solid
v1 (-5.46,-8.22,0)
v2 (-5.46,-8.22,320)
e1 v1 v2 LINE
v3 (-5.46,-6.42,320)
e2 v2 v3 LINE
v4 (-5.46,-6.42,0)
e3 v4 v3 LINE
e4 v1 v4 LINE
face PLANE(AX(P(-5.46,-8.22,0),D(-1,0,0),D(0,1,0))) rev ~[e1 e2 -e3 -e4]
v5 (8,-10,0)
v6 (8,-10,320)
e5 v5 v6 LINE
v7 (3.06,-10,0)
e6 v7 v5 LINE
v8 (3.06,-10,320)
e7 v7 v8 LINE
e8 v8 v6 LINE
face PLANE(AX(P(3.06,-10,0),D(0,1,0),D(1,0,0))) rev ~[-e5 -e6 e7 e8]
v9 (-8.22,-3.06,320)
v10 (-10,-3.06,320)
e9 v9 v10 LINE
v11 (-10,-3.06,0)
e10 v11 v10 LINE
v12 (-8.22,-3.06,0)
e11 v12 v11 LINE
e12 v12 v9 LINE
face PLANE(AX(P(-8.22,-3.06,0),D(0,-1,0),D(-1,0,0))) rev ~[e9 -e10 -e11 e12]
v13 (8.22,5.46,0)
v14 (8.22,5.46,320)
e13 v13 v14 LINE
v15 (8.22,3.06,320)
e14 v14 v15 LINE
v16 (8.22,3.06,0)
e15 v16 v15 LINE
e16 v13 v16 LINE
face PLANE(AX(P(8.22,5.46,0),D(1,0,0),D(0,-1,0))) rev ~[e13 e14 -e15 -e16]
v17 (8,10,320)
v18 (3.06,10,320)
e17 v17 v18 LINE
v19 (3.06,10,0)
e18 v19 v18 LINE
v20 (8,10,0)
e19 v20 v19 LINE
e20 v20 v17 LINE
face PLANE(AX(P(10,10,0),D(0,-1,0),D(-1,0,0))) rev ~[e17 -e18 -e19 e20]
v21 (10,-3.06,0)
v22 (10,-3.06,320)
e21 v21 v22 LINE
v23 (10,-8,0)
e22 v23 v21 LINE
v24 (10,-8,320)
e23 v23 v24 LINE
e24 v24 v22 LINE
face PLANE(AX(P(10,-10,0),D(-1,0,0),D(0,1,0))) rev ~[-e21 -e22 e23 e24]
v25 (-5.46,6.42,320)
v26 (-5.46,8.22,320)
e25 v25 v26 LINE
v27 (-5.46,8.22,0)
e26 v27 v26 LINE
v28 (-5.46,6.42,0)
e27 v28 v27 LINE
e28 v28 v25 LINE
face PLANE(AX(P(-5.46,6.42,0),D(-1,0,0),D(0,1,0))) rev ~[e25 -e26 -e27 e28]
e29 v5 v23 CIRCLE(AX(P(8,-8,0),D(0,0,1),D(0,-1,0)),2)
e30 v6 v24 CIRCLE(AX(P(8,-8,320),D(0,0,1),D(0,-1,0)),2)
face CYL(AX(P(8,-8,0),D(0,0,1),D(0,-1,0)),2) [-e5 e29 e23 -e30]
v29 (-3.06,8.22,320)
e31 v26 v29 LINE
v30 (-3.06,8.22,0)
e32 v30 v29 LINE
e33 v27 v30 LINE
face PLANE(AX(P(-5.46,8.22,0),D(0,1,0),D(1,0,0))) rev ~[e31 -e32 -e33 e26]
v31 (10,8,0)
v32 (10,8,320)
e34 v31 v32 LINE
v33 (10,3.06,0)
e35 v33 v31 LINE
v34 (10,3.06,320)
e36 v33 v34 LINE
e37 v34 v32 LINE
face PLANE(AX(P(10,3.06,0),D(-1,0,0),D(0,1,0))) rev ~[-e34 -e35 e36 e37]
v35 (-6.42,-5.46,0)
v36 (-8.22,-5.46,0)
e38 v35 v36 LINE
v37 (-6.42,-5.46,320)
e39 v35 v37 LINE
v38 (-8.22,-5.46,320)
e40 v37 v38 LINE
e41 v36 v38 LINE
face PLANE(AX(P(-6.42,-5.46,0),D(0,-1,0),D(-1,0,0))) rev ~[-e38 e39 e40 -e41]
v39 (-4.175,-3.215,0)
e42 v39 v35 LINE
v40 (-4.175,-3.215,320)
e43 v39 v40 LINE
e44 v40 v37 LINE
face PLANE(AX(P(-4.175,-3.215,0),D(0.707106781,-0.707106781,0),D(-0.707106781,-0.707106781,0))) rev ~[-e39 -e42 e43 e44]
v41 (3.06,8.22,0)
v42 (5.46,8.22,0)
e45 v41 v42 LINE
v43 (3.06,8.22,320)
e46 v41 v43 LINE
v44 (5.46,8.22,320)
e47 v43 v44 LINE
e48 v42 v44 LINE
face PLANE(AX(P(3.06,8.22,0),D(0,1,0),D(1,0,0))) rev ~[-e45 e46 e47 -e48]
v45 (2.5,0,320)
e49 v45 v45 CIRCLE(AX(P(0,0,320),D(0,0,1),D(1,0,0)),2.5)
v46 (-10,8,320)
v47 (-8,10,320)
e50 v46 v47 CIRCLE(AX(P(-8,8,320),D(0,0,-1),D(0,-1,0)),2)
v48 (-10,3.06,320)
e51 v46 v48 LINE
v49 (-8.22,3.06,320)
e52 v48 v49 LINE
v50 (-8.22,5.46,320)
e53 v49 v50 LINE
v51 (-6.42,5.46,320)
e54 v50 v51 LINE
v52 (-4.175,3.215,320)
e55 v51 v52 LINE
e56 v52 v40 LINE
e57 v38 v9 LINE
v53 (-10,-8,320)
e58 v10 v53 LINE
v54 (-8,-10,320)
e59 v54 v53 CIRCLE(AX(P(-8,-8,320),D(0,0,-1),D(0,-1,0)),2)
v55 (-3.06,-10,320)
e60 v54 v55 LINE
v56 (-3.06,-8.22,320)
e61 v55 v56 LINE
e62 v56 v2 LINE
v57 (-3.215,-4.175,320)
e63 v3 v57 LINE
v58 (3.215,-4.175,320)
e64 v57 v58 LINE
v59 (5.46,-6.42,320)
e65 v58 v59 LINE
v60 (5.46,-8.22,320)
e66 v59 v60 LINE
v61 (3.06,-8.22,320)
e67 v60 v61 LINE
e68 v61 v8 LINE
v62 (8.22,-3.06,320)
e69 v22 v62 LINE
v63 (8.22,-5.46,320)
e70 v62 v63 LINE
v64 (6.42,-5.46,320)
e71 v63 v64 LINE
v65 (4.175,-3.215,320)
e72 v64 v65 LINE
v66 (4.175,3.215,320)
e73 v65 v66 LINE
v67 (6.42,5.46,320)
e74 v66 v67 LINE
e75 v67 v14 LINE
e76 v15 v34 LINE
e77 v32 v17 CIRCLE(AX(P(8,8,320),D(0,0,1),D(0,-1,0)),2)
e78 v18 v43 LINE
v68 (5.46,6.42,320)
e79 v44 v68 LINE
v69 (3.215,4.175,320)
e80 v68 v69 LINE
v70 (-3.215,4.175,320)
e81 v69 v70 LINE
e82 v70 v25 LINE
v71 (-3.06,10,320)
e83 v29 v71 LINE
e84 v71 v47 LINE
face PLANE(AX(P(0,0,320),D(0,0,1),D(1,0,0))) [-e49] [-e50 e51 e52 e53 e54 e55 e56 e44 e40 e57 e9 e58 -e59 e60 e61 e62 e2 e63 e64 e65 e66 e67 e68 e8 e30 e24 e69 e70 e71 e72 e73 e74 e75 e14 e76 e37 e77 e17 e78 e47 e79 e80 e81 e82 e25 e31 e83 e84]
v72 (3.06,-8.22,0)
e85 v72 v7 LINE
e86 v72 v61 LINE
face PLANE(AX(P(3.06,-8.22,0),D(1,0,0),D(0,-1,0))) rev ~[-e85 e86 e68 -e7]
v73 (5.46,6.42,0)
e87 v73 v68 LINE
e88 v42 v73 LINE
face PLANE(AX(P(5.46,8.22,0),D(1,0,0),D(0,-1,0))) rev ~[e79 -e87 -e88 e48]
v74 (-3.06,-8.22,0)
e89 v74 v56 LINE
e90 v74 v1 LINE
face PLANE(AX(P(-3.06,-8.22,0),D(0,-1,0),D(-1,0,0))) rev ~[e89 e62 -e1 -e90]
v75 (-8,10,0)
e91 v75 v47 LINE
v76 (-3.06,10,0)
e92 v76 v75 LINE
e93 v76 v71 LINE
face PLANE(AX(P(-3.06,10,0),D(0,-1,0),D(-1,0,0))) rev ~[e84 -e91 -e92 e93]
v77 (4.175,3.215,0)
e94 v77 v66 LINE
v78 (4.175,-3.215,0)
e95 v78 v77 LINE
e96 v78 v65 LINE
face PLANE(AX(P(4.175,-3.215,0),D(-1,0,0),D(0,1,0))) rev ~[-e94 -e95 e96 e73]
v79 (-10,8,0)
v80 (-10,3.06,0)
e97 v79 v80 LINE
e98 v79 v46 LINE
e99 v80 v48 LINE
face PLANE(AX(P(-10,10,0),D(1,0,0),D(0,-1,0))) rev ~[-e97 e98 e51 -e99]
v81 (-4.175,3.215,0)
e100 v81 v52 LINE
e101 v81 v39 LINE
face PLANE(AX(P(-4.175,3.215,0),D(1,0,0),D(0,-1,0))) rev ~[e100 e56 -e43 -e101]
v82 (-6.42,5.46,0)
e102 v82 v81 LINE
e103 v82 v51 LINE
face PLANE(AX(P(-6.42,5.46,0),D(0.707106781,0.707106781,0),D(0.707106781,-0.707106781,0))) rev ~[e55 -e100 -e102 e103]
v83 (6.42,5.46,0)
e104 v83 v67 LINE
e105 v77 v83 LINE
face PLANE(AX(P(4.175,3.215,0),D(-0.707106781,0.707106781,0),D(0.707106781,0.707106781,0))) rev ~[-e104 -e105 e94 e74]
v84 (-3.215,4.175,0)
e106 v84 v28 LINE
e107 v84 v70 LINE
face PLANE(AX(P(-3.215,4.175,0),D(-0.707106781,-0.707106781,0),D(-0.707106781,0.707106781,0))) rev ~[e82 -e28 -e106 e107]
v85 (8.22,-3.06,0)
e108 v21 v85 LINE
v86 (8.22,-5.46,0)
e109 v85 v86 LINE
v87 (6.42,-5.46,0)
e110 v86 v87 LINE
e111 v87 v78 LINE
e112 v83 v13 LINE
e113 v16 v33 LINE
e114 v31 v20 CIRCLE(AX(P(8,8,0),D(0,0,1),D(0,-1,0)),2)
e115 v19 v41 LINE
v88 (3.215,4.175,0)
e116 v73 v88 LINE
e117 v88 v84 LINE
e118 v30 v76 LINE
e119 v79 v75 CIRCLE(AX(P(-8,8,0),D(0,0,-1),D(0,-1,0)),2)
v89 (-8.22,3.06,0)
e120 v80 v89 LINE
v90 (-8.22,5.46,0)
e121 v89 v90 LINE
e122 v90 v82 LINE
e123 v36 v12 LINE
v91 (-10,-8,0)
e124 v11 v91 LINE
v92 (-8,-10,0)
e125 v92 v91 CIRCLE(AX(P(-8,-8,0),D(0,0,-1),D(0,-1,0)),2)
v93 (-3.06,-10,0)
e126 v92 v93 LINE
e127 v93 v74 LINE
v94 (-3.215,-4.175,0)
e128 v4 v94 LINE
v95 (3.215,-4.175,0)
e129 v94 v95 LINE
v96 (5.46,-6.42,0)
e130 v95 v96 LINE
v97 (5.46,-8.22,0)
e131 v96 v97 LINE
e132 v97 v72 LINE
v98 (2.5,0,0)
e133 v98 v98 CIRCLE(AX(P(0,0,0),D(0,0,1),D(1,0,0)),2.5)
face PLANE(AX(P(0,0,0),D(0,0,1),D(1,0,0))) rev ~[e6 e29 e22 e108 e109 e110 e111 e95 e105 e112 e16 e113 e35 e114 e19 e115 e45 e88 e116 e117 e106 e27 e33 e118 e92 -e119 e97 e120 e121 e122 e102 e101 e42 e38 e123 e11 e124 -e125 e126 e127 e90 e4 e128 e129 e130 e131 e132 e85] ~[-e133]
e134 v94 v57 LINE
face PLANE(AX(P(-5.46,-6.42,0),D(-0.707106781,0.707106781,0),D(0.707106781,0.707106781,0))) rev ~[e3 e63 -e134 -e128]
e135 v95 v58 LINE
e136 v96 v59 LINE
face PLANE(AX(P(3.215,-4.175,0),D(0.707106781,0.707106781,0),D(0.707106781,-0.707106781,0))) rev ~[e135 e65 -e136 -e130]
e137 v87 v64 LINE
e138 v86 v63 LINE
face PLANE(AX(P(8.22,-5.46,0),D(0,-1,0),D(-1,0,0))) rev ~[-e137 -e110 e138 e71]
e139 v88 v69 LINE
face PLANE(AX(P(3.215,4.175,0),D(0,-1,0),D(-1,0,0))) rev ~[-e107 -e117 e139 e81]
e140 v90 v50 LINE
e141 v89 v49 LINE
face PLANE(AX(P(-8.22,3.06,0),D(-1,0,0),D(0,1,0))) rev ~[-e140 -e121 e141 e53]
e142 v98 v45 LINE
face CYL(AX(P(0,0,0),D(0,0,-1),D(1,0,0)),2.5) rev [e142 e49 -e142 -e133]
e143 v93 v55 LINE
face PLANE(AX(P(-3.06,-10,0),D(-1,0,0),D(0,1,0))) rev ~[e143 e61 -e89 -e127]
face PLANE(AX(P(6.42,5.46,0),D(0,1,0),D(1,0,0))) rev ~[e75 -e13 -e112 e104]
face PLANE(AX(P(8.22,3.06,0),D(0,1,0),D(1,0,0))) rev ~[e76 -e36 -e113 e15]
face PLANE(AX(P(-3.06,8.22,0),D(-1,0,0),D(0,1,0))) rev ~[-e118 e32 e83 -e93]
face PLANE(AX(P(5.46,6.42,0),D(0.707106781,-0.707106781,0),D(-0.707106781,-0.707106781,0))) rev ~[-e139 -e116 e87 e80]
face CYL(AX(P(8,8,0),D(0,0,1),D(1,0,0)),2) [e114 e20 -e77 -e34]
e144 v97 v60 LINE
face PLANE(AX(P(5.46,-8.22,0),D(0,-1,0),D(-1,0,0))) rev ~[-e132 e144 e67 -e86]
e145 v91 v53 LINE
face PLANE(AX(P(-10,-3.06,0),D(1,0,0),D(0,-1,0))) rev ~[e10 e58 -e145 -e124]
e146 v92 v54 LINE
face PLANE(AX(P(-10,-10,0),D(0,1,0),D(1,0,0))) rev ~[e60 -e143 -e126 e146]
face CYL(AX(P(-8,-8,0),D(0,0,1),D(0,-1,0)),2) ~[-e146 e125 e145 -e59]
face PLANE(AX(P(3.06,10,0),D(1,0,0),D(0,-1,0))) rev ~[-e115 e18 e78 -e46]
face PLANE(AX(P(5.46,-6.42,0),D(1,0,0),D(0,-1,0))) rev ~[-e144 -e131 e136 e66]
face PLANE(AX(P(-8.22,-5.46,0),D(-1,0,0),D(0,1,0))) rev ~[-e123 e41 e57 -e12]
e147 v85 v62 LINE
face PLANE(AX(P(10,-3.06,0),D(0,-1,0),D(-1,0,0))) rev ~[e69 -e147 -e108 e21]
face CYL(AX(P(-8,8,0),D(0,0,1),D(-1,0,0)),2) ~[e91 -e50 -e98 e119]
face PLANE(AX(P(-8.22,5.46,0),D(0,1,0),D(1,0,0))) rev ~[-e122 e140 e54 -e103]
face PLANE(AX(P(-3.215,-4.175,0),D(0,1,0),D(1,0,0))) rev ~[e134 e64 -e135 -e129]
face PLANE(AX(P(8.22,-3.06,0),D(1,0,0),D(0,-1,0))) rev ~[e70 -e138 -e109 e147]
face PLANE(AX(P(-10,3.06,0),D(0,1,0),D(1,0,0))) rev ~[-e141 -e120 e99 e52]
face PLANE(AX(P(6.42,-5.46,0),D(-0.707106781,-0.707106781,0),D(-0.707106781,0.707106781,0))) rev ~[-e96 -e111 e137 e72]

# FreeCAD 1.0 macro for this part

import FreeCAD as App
import Part
import Sketcher
from FreeCAD import Vector
Q = App.Units.Quantity


def edges_at(feature, points):
    """Names of the edges that pass closest to the given points."""
    edges = feature.Shape.Edges
    near = lambda p: min(range(len(edges)), key=lambda i: edges[i].distToShape(Part.Vertex(*p))[0])
    return sorted({f"Edge{near(p) + 1}" for p in points})

doc = App.newDocument("Part")
params = doc.addObject("Spreadsheet::Sheet", "Params")
for row, (alias, value) in enumerate([
    ("sketch1_diameter", "5 mm"),
    ("sketch1_width", "2.4 mm"),
    ("sketch1_width2", "1.8 mm"),
    ("sketch1_width3", "6.43 mm"),
    ("sketch1_width4", "6.94 mm"),
    ("pad1_length", "320 mm"),
    ("fillet_radius", "2 mm"),
], start=1):
    params.set(f"A{row}", alias)
    params.set(f"B{row}", "=" + value)
    params.setAlias(f"B{row}", alias)

body = doc.addObject("PartDesign::Body", "Body")

sketch1 = body.newObject("Sketcher::SketchObject", "Sketch")
sketch1.AttachmentSupport = (doc.getObject("XY_Plane"), [""])
sketch1.MapMode = "FlatFace"
sketch1.addGeometry([
    Part.LineSegment(Vector(-5.46, -6.42, 0), Vector(-3.215, -4.175, 0)),
    Part.LineSegment(Vector(-3.215, -4.175, 0), Vector(3.215, -4.175, 0)),
    Part.LineSegment(Vector(3.215, -4.175, 0), Vector(5.46, -6.42, 0)),
    Part.LineSegment(Vector(5.46, -6.42, 0), Vector(5.46, -8.22, 0)),
    Part.LineSegment(Vector(5.46, -8.22, 0), Vector(3.06, -8.22, 0)),
    Part.LineSegment(Vector(3.06, -8.22, 0), Vector(3.06, -10, 0)),
    Part.LineSegment(Vector(3.06, -10, 0), Vector(10, -10, 0)),
    Part.LineSegment(Vector(10, -10, 0), Vector(10, -3.06, 0)),
    Part.LineSegment(Vector(10, -3.06, 0), Vector(8.22, -3.06, 0)),
    Part.LineSegment(Vector(8.22, -3.06, 0), Vector(8.22, -5.46, 0)),
    Part.LineSegment(Vector(8.22, -5.46, 0), Vector(6.42, -5.46, 0)),
    Part.LineSegment(Vector(6.42, -5.46, 0), Vector(4.175, -3.215, 0)),
    Part.LineSegment(Vector(4.175, -3.215, 0), Vector(4.175, 3.215, 0)),
    Part.LineSegment(Vector(4.175, 3.215, 0), Vector(6.42, 5.46, 0)),
    Part.LineSegment(Vector(6.42, 5.46, 0), Vector(8.22, 5.46, 0)),
    Part.LineSegment(Vector(8.22, 5.46, 0), Vector(8.22, 3.06, 0)),
    Part.LineSegment(Vector(8.22, 3.06, 0), Vector(10, 3.06, 0)),
    Part.LineSegment(Vector(10, 3.06, 0), Vector(10, 10, 0)),
    Part.LineSegment(Vector(10, 10, 0), Vector(3.06, 10, 0)),
    Part.LineSegment(Vector(3.06, 10, 0), Vector(3.06, 8.22, 0)),
    Part.LineSegment(Vector(3.06, 8.22, 0), Vector(5.46, 8.22, 0)),
    Part.LineSegment(Vector(5.46, 8.22, 0), Vector(5.46, 6.42, 0)),
    Part.LineSegment(Vector(5.46, 6.42, 0), Vector(3.215, 4.175, 0)),
    Part.LineSegment(Vector(3.215, 4.175, 0), Vector(-3.215, 4.175, 0)),
    Part.LineSegment(Vector(-3.215, 4.175, 0), Vector(-5.46, 6.42, 0)),
    Part.LineSegment(Vector(-5.46, 6.42, 0), Vector(-5.46, 8.22, 0)),
    Part.LineSegment(Vector(-5.46, 8.22, 0), Vector(-3.06, 8.22, 0)),
    Part.LineSegment(Vector(-3.06, 8.22, 0), Vector(-3.06, 10, 0)),
    Part.LineSegment(Vector(-3.06, 10, 0), Vector(-10, 10, 0)),
    Part.LineSegment(Vector(-10, 10, 0), Vector(-10, 3.06, 0)),
    Part.LineSegment(Vector(-10, 3.06, 0), Vector(-8.22, 3.06, 0)),
    Part.LineSegment(Vector(-8.22, 3.06, 0), Vector(-8.22, 5.46, 0)),
    Part.LineSegment(Vector(-8.22, 5.46, 0), Vector(-6.42, 5.46, 0)),
    Part.LineSegment(Vector(-6.42, 5.46, 0), Vector(-4.175, 3.215, 0)),
    Part.LineSegment(Vector(-4.175, 3.215, 0), Vector(-4.175, -3.215, 0)),
    Part.LineSegment(Vector(-4.175, -3.215, 0), Vector(-6.42, -5.46, 0)),
    Part.LineSegment(Vector(-6.42, -5.46, 0), Vector(-8.22, -5.46, 0)),
    Part.LineSegment(Vector(-8.22, -5.46, 0), Vector(-8.22, -3.06, 0)),
    Part.LineSegment(Vector(-8.22, -3.06, 0), Vector(-10, -3.06, 0)),
    Part.LineSegment(Vector(-10, -3.06, 0), Vector(-10, -10, 0)),
    Part.LineSegment(Vector(-10, -10, 0), Vector(-3.06, -10, 0)),
    Part.LineSegment(Vector(-3.06, -10, 0), Vector(-3.06, -8.22, 0)),
    Part.LineSegment(Vector(-3.06, -8.22, 0), Vector(-5.46, -8.22, 0)),
    Part.LineSegment(Vector(-5.46, -8.22, 0), Vector(-5.46, -6.42, 0)),
    Part.Circle(Vector(0, 0, 0), Vector(0, 0, 1), 2.5),
], False)
sketch1.addConstraint([
    Sketcher.Constraint("Coincident", 0, 2, 1, 1),
    Sketcher.Constraint("Coincident", 1, 2, 2, 1),
    Sketcher.Constraint("Coincident", 2, 2, 3, 1),
    Sketcher.Constraint("Coincident", 3, 2, 4, 1),
    Sketcher.Constraint("Coincident", 4, 2, 5, 1),
    Sketcher.Constraint("Coincident", 5, 2, 6, 1),
    Sketcher.Constraint("Coincident", 6, 2, 7, 1),
    Sketcher.Constraint("Coincident", 7, 2, 8, 1),
    Sketcher.Constraint("Coincident", 8, 2, 9, 1),
    Sketcher.Constraint("Coincident", 9, 2, 10, 1),
    Sketcher.Constraint("Coincident", 10, 2, 11, 1),
    Sketcher.Constraint("Coincident", 11, 2, 12, 1),
    Sketcher.Constraint("Coincident", 12, 2, 13, 1),
    Sketcher.Constraint("Coincident", 13, 2, 14, 1),
    Sketcher.Constraint("Coincident", 14, 2, 15, 1),
    Sketcher.Constraint("Coincident", 15, 2, 16, 1),
    Sketcher.Constraint("Coincident", 16, 2, 17, 1),
    Sketcher.Constraint("Coincident", 17, 2, 18, 1),
    Sketcher.Constraint("Coincident", 18, 2, 19, 1),
    Sketcher.Constraint("Coincident", 19, 2, 20, 1),
    Sketcher.Constraint("Coincident", 20, 2, 21, 1),
    Sketcher.Constraint("Coincident", 21, 2, 22, 1),
    Sketcher.Constraint("Coincident", 22, 2, 23, 1),
    Sketcher.Constraint("Coincident", 23, 2, 24, 1),
    Sketcher.Constraint("Coincident", 24, 2, 25, 1),
    Sketcher.Constraint("Coincident", 25, 2, 26, 1),
    Sketcher.Constraint("Coincident", 26, 2, 27, 1),
    Sketcher.Constraint("Coincident", 27, 2, 28, 1),
    Sketcher.Constraint("Coincident", 28, 2, 29, 1),
    Sketcher.Constraint("Coincident", 29, 2, 30, 1),
    Sketcher.Constraint("Coincident", 30, 2, 31, 1),
    Sketcher.Constraint("Coincident", 31, 2, 32, 1),
    Sketcher.Constraint("Coincident", 32, 2, 33, 1),
    Sketcher.Constraint("Coincident", 33, 2, 34, 1),
    Sketcher.Constraint("Coincident", 34, 2, 35, 1),
    Sketcher.Constraint("Coincident", 35, 2, 36, 1),
    Sketcher.Constraint("Coincident", 36, 2, 37, 1),
    Sketcher.Constraint("Coincident", 37, 2, 38, 1),
    Sketcher.Constraint("Coincident", 38, 2, 39, 1),
    Sketcher.Constraint("Coincident", 39, 2, 40, 1),
    Sketcher.Constraint("Coincident", 40, 2, 41, 1),
    Sketcher.Constraint("Coincident", 41, 2, 42, 1),
    Sketcher.Constraint("Coincident", 42, 2, 43, 1),
    Sketcher.Constraint("Coincident", 43, 2, 0, 1),
    Sketcher.Constraint("Horizontal", 1),
    Sketcher.Constraint("Vertical", 3),
    Sketcher.Constraint("Horizontal", 4),
    Sketcher.Constraint("Vertical", 5),
    Sketcher.Constraint("Horizontal", 6),
    Sketcher.Constraint("Vertical", 7),
    Sketcher.Constraint("Horizontal", 8),
    Sketcher.Constraint("Vertical", 9),
    Sketcher.Constraint("Horizontal", 10),
    Sketcher.Constraint("Vertical", 12),
    Sketcher.Constraint("Horizontal", 14),
    Sketcher.Constraint("Vertical", 15),
    Sketcher.Constraint("Horizontal", 16),
    Sketcher.Constraint("Vertical", 17),
    Sketcher.Constraint("Horizontal", 18),
    Sketcher.Constraint("Vertical", 19),
    Sketcher.Constraint("Horizontal", 20),
    Sketcher.Constraint("Vertical", 21),
    Sketcher.Constraint("Horizontal", 23),
    Sketcher.Constraint("Vertical", 25),
    Sketcher.Constraint("Horizontal", 26),
    Sketcher.Constraint("Vertical", 27),
    Sketcher.Constraint("Horizontal", 28),
    Sketcher.Constraint("Vertical", 29),
    Sketcher.Constraint("Horizontal", 30),
    Sketcher.Constraint("Vertical", 31),
    Sketcher.Constraint("Horizontal", 32),
    Sketcher.Constraint("Vertical", 34),
    Sketcher.Constraint("Horizontal", 36),
    Sketcher.Constraint("Vertical", 37),
    Sketcher.Constraint("Horizontal", 38),
    Sketcher.Constraint("Vertical", 39),
    Sketcher.Constraint("Horizontal", 40),
    Sketcher.Constraint("Vertical", 41),
    Sketcher.Constraint("Horizontal", 42),
    Sketcher.Constraint("Vertical", 43),
    Sketcher.Constraint("Coincident", 44, 3, -1, 1),
    Sketcher.Constraint("Symmetric", 0, 2, 22, 2, -1, 1),
    Sketcher.Constraint("Symmetric", 2, 2, 24, 2, -1, 1),
    Sketcher.Constraint("Symmetric", 4, 2, 26, 2, -1, 1),
    Sketcher.Constraint("Symmetric", 6, 2, 28, 2, -1, 1),
    Sketcher.Constraint("Symmetric", 8, 2, 30, 2, -1, 1),
    Sketcher.Constraint("Symmetric", 10, 2, 32, 2, -1, 1),
    Sketcher.Constraint("Symmetric", 11, 2, 33, 2, -1, 1),
    Sketcher.Constraint("Symmetric", 13, 2, 35, 2, -1, 1),
    Sketcher.Constraint("Symmetric", 15, 2, 37, 2, -1, 1),
    Sketcher.Constraint("Symmetric", 17, 2, 39, 2, -1, 1),
    Sketcher.Constraint("Symmetric", 19, 2, 41, 2, -1, 1),
    Sketcher.Constraint("Symmetric", 21, 2, 43, 2, -1, 1),
    Sketcher.Constraint("Symmetric", 21, 2, 24, 2, -2),
    Sketcher.Constraint("Symmetric", 19, 2, 26, 2, -2),
    Sketcher.Constraint("Symmetric", 17, 2, 28, 2, -2),
    Sketcher.Constraint("Symmetric", 15, 2, 30, 2, -2),
    Sketcher.Constraint("Symmetric", 13, 2, 32, 2, -2),
    Sketcher.Constraint("Perpendicular", 0, 2),
    Sketcher.Constraint("Parallel", 2, 11),
    Sketcher.Constraint("Perpendicular", 11, 13),
    Sketcher.Constraint("Perpendicular", 22, 24),
    Sketcher.Constraint("Perpendicular", 33, 35),
    Sketcher.Constraint("Horizontal", 12, 2, 33, 2),
    Sketcher.Constraint("Equal", 36, 3),
    Sketcher.Constraint("Equal", 38, 5),
    Sketcher.Constraint("Equal", 40, 7),
    Sketcher.Constraint("Equal", 42, 9),
    Sketcher.Constraint("Equal", 23, 12),
    Sketcher.Constraint("Equal", 2, 11),
    Sketcher.Constraint("Diameter", 44, Q("5 mm")),
    Sketcher.Constraint("DistanceX", 4, 2, 4, 1, Q("2.4 mm")),
    Sketcher.Constraint("DistanceX", 10, 2, 10, 1, Q("1.8 mm")),
    Sketcher.Constraint("DistanceY", 5, 2, -1, 1, Q("10 mm")),
    Sketcher.Constraint("DistanceX", 1, 1, 1, 2, Q("6.43 mm")),
    Sketcher.Constraint("DistanceX", 6, 1, 6, 2, Q("6.94 mm")),
    Sketcher.Constraint("DistanceX", 8, 2, 8, 1, Q("1.78 mm")),
])
sketch1.setExpression("Constraints[110]", "Params.sketch1_diameter")
sketch1.setExpression("Constraints[111]", "Params.sketch1_width")
sketch1.setExpression("Constraints[112]", "Params.sketch1_width2")
sketch1.setExpression("Constraints[114]", "Params.sketch1_width3")
sketch1.setExpression("Constraints[115]", "Params.sketch1_width4")
pad1 = body.newObject("PartDesign::Pad", "Pad")
pad1.Profile = sketch1
pad1.setExpression("Length", "Params.pad1_length")
doc.recompute()

fillet = body.newObject("PartDesign::Fillet", "Fillet")
fillet.Base = (pad1, edges_at(pad1, [
    (10, -10, 160),
    (-10, -10, 160),
    (-10, 10, 160),
    (10, 10, 160),
]))
fillet.setExpression("Radius", "Params.fillet_radius")

doc.recompute()
